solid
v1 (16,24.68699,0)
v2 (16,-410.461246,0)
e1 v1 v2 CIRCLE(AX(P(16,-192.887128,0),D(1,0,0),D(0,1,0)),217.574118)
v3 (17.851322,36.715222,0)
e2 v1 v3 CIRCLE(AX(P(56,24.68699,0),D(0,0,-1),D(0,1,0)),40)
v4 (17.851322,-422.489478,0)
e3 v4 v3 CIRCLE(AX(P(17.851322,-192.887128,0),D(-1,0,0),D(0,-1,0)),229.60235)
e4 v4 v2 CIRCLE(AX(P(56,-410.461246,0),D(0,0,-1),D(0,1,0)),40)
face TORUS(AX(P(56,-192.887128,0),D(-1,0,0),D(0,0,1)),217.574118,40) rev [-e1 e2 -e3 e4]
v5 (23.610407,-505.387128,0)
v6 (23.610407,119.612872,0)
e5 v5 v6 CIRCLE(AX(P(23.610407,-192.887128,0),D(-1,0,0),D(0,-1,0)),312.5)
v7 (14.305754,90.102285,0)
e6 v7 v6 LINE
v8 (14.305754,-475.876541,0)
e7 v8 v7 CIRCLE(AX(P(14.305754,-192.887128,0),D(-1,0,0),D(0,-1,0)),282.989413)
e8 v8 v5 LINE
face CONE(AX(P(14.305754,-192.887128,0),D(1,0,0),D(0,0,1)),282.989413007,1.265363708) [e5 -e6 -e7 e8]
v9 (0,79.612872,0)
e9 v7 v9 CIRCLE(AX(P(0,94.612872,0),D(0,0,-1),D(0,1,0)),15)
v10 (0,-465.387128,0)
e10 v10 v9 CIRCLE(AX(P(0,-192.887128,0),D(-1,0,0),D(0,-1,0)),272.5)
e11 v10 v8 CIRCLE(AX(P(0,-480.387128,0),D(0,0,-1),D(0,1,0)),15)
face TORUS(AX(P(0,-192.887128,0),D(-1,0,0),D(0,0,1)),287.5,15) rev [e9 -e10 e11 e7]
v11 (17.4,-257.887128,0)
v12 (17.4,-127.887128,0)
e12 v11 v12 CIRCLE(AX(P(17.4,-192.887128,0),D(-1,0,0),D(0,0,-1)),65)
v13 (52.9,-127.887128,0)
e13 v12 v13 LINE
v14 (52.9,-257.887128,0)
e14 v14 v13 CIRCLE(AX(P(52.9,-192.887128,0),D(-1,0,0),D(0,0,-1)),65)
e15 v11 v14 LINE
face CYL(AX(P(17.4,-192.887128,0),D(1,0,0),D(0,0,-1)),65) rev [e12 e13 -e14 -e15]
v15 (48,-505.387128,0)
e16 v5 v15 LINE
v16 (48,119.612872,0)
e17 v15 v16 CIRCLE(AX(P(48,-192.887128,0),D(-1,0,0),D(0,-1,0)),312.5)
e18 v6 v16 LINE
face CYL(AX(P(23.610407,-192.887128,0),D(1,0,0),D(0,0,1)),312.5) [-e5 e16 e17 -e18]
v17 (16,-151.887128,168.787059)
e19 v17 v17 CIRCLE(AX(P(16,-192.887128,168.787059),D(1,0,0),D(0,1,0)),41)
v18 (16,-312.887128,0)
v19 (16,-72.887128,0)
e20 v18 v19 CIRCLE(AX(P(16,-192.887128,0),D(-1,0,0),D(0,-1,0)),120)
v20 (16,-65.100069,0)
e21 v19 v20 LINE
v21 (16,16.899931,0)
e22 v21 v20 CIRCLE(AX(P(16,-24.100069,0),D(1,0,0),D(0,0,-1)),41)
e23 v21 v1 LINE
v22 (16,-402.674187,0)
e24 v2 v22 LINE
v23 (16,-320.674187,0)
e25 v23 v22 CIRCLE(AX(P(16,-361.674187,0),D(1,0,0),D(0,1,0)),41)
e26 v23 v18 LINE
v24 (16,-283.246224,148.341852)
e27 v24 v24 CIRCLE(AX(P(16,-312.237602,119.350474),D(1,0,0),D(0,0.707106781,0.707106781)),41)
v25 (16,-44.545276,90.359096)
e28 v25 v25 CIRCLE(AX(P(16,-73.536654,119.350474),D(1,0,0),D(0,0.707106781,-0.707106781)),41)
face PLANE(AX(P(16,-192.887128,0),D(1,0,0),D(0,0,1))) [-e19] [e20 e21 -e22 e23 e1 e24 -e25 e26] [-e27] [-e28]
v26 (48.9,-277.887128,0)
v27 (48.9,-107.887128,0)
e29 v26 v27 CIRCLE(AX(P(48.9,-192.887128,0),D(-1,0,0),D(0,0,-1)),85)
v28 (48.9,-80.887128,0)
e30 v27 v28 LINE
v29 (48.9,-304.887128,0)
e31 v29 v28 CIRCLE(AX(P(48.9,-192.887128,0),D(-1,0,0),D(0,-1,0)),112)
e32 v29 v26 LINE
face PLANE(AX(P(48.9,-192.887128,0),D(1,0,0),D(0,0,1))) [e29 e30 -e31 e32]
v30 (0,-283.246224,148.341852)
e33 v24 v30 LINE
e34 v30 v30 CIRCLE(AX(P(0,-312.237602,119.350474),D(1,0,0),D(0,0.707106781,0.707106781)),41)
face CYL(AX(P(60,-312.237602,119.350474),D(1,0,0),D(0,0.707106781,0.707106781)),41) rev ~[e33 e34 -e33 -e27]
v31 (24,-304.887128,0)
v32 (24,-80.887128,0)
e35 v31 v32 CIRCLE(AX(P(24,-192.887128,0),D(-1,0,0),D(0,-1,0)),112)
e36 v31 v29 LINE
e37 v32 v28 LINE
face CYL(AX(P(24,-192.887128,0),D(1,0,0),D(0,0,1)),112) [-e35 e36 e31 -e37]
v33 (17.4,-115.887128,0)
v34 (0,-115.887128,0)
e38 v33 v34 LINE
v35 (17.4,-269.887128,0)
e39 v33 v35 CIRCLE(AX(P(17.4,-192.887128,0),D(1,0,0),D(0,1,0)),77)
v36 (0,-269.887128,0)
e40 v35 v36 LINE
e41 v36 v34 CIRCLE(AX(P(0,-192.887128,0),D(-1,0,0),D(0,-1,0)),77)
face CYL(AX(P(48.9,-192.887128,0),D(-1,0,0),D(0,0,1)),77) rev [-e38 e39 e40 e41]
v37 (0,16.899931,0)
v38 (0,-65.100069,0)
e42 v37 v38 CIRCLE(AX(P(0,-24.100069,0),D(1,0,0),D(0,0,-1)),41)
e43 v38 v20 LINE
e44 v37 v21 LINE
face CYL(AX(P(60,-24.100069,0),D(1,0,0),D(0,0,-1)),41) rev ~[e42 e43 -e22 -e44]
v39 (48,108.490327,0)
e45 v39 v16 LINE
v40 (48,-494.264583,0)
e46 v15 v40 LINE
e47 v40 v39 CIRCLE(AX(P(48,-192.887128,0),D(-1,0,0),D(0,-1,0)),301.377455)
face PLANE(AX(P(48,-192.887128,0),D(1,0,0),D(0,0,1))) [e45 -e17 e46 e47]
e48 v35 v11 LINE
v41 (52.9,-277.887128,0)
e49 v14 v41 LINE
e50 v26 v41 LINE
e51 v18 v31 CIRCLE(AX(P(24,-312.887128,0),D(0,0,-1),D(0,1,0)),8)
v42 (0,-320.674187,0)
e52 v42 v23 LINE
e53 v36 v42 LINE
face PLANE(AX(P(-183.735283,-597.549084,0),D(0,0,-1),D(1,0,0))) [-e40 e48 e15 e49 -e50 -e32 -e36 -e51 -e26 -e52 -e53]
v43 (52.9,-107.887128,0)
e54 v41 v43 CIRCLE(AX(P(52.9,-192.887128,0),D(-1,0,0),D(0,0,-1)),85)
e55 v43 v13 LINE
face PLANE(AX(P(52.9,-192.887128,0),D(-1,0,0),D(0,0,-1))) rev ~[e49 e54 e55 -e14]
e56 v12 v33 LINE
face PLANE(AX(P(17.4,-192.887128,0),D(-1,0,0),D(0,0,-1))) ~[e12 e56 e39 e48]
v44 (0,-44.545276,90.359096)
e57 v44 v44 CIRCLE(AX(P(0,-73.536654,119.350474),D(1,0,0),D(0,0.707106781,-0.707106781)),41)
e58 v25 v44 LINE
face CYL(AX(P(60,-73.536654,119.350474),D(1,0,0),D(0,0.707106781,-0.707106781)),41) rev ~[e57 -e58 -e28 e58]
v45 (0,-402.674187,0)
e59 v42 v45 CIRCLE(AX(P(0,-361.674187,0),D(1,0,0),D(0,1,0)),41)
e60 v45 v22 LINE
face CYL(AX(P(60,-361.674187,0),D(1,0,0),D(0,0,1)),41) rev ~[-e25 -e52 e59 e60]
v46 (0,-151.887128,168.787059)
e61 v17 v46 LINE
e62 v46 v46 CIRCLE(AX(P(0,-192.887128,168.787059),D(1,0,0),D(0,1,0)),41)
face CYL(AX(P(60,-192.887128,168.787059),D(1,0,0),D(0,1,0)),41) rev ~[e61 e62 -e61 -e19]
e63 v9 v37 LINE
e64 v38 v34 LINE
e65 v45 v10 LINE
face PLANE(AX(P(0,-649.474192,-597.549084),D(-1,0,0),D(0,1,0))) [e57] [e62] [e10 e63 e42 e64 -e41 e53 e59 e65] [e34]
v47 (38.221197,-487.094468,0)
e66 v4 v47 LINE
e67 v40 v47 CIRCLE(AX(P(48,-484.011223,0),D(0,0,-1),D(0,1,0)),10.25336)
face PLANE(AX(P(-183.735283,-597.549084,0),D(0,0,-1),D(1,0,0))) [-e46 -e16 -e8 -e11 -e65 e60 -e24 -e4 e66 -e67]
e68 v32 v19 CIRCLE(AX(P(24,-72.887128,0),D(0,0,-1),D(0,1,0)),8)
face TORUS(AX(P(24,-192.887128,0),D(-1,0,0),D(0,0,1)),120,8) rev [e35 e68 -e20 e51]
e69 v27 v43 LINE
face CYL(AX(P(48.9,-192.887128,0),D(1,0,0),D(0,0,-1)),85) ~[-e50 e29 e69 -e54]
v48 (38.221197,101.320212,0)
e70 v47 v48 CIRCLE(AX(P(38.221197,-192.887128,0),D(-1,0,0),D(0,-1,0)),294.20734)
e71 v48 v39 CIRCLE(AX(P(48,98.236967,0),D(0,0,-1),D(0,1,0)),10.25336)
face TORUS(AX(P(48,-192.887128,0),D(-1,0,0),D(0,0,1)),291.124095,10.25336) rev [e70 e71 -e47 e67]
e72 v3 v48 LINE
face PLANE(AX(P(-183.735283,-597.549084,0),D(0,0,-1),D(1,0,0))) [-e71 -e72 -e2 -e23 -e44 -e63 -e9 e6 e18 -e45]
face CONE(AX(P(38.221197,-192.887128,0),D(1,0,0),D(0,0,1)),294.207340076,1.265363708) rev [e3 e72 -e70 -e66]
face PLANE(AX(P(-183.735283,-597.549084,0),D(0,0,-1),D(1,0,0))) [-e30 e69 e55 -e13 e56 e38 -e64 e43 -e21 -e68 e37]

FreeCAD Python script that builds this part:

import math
import FreeCAD as App
import Part
import Sketcher
from FreeCAD import Vector
Q = App.Units.Quantity


def add_polygon(sketch, points):
    """Adds a closed chain of lines whose ends are joined by coincident constraints."""
    first, n = sketch.GeometryCount, len(points)
    for a, b in zip(points, points[1:] + points[:1]):
        sketch.addGeometry(Part.LineSegment(App.Vector(*a, 0), App.Vector(*b, 0)), False)
    for i in range(n):
        sketch.addConstraint(Sketcher.Constraint("Coincident", first + i, 2, first + (i + 1) % n, 1))

doc = App.newDocument("Part")
params = doc.addObject("Spreadsheet::Sheet", "Params")
for row, (alias, value) in enumerate([
    ("sketch1_radius", "15 mm"),
    ("sketch1_radius2", "8 mm"),
    ("sketch1_radius3", "40 mm"),
    ("sketch1_width", "56 mm"),
    ("sketch1_height", "35 mm"),
    ("revolution_angle", "360 deg"),
    ("sketch2_diameter", "82 mm"),
    ("pocket1_length", "120 mm"),
    ("sketch3_width", "4 mm"),
    ("sketch3_height", "8 mm"),
    ("sketch3_height2", "12 mm"),
    ("sketch3_width2", "31.5 mm"),
    ("revolution2_angle", "360 deg"),
], start=1):
    params.set(f"A{row}", alias)
    params.set(f"B{row}", "=" + value)
    params.setAlias(f"B{row}", alias)

body = doc.addObject("PartDesign::Body", "Body")

sketch1 = body.newObject("Sketcher::SketchObject", "Sketch")
sketch1.AttachmentSupport = (doc.getObject("XY_Plane"), [""])
sketch1.MapMode = "FlatFace"
sketch1.addGeometry([
    Part.LineSegment(Vector(23.610407, 119.612872, 0), Vector(14.305754, 90.102285, 0)),
    Part.ArcOfCircle(Part.Circle(Vector(0, 94.612872, 0), Vector(0, 0, 1), 15), math.radians(-90), math.radians(-17.5)),
    Part.LineSegment(Vector(0, 79.612872, 0), Vector(0, -115.887128, 0)),
    Part.LineSegment(Vector(0, -115.887128, 0), Vector(48.9, -115.887128, 0)),
    Part.LineSegment(Vector(48.9, -115.887128, 0), Vector(48.9, -80.887128, 0)),
    Part.LineSegment(Vector(48.9, -80.887128, 0), Vector(24, -80.887128, 0)),
    Part.ArcOfCircle(Part.Circle(Vector(24, -72.887128, 0), Vector(0, 0, 1), 8), math.radians(180), math.radians(270)),
    Part.LineSegment(Vector(16, -72.887128, 0), Vector(16, 24.68699, 0)),
    Part.ArcOfCircle(Part.Circle(Vector(56, 24.68699, 0), Vector(0, 0, 1), 40), math.radians(162.5), math.radians(180)),
    Part.LineSegment(Vector(17.851322, 36.715222, 0), Vector(38.221197, 101.320212, 0)),
    Part.ArcOfCircle(Part.Circle(Vector(48, 98.236967, 0), Vector(0, 0, 1), 10.25336), math.radians(90), math.radians(162.5)),
    Part.LineSegment(Vector(48, 108.490327, 0), Vector(48, 119.612872, 0)),
    Part.LineSegment(Vector(48, 119.612872, 0), Vector(23.610407, 119.612872, 0)),
], False)
sketch1.addGeometry(Part.LineSegment(Vector(0, -192.887128, 0), Vector(56, -192.887128, 0)), True)
sketch1.addConstraint([
    Sketcher.Constraint("Tangent", 0, 2, 1, 2),
    Sketcher.Constraint("Coincident", 1, 1, 2, 1),
    Sketcher.Constraint("Coincident", 2, 2, 3, 1),
    Sketcher.Constraint("Coincident", 3, 2, 4, 1),
    Sketcher.Constraint("Coincident", 4, 2, 5, 1),
    Sketcher.Constraint("Tangent", 5, 2, 6, 2),
    Sketcher.Constraint("Tangent", 6, 1, 7, 1),
    Sketcher.Constraint("Tangent", 7, 2, 8, 2),
    Sketcher.Constraint("Tangent", 8, 1, 9, 1),
    Sketcher.Constraint("Tangent", 9, 2, 10, 2),
    Sketcher.Constraint("Coincident", 10, 1, 11, 1),
    Sketcher.Constraint("Coincident", 11, 2, 12, 1),
    Sketcher.Constraint("Coincident", 12, 2, 0, 1),
    Sketcher.Constraint("Vertical", 2),
    Sketcher.Constraint("Horizontal", 3),
    Sketcher.Constraint("Vertical", 4),
    Sketcher.Constraint("Horizontal", 5),
    Sketcher.Constraint("Vertical", 7),
    Sketcher.Constraint("Vertical", 11),
    Sketcher.Constraint("Horizontal", 12),
    Sketcher.Constraint("Horizontal", 13),
    Sketcher.Constraint("PointOnObject", 1, 3, -2),
    Sketcher.Constraint("PointOnObject", 1, 1, -2),
    Sketcher.Constraint("PointOnObject", 13, 1, -2),
    Sketcher.Constraint("Parallel", 0, 9),
    Sketcher.Constraint("Vertical", 8, 3, 13, 2),
    Sketcher.Constraint("Radius", 1, 15.0),
    Sketcher.Constraint("Radius", 6, 8.0),
    Sketcher.Constraint("Radius", 8, 40.0),
    Sketcher.Constraint("DistanceX", 13, 1, 13, 2, 56.0),
    Sketcher.Constraint("DistanceY", 4, 1, 4, 2, 35.0),
    Sketcher.Constraint("DistanceX", 3, 1, 3, 2, 48.9),
    Sketcher.Constraint("DistanceY", 2, 2, 2, 1, 195.5),
    Sketcher.Constraint("DistanceX", -1, 1, 10, 3, 48.0),
    Sketcher.Constraint("DistanceX", -1, 1, 10, 1, 48.0),
    Sketcher.Constraint("Angle", 0, Q("-107.5 deg")),
    Sketcher.Constraint("DistanceY", 1, 3, 11, 2, 25.0),
    Sketcher.Constraint("DistanceY", 13, 1, 2, 2, 77.0),
    Sketcher.Constraint("Radius", 10, 10.25336),
    Sketcher.Constraint("DistanceY", 7, 1, 7, 2, 97.574118),
    Sketcher.Constraint("DistanceY", -1, 1, 1, 3, 94.612872),
])
sketch1.setExpression("Constraints[26]", "Params.sketch1_radius")
sketch1.setExpression("Constraints[27]", "Params.sketch1_radius2")
sketch1.setExpression("Constraints[28]", "Params.sketch1_radius3")
sketch1.setExpression("Constraints[29]", "Params.sketch1_width")
sketch1.setExpression("Constraints[30]", "Params.sketch1_height")
revolution = body.newObject("PartDesign::Revolution", "Revolution")
revolution.Profile = sketch1
revolution.ReferenceAxis = (sketch1, ["Axis0"])
revolution.setExpression("Angle", "Params.revolution_angle")
doc.recompute()

mirrored = body.newObject("PartDesign::Mirrored", "Mirrored")
mirrored.Originals = [revolution]
mirrored.MirrorPlane = (doc.getObject("YZ_Plane"), [""])
body.Tip = mirrored

sketch2 = body.newObject("Sketcher::SketchObject", "Sketch001")
sketch2.AttachmentSupport = (doc.getObject("YZ_Plane"), [""])
sketch2.MapMode = "FlatFace"
sketch2.AttachmentOffset = App.Placement(Vector(0, 0, 60), App.Rotation())
sketch2.addGeometry(Part.Circle(Vector(-24.100069, 0, 0), Vector(0, 0, 1), 41), False)
sketch2.addConstraint([
    Sketcher.Constraint("PointOnObject", 0, 3, -1),
    Sketcher.Constraint("Diameter", 0, 82.0),
    Sketcher.Constraint("DistanceX", 0, 3, -1, 1, 24.100069),
])
sketch2.setExpression("Constraints[1]", "Params.sketch2_diameter")
pocket1 = body.newObject("PartDesign::Pocket", "Pocket")
pocket1.Profile = sketch2
pocket1.setExpression("Length", "Params.pocket1_length")
doc.recompute()

datumline = body.newObject("PartDesign::Line", "DatumLine")
datumline.Placement = App.Placement(Vector(0, -192.887128, 0), App.Rotation(Vector(0, 0, 1), Vector(1, 0, 0)))
polarpattern = body.newObject("PartDesign::PolarPattern", "PolarPattern")
polarpattern.Originals = [pocket1]
polarpattern.Axis = (datumline, [""])
polarpattern.Angle = 360
polarpattern.Occurrences = 8
body.Tip = polarpattern

sketch3 = body.newObject("Sketcher::SketchObject", "Sketch002")
sketch3.AttachmentSupport = (doc.getObject("XY_Plane"), [""])
sketch3.MapMode = "FlatFace"
add_polygon(sketch3, [(48.9, -107.887128), (48.9, -115.887128), (17.4, -115.887128), (17.4, -127.887128), (52.9, -127.887128), (52.9, -107.887128)])
sketch3.addGeometry(Part.LineSegment(Vector(52.9, -192.887128, 0), Vector(17.4, -192.887128, 0)), True)
sketch3.addConstraint([
    Sketcher.Constraint("Vertical", 0),
    Sketcher.Constraint("Horizontal", 1),
    Sketcher.Constraint("Vertical", 2),
    Sketcher.Constraint("Horizontal", 3),
    Sketcher.Constraint("Vertical", 4),
    Sketcher.Constraint("Horizontal", 5),
    Sketcher.Constraint("Horizontal", 6),
    Sketcher.Constraint("Vertical", 4, 2, 6, 1),
    Sketcher.Constraint("Vertical", 2, 2, 6, 2),
    Sketcher.Constraint("DistanceX", 5, 2, 5, 1, 4.0),
    Sketcher.Constraint("DistanceY", 0, 2, 0, 1, 8.0),
    Sketcher.Constraint("DistanceY", 2, 2, 2, 1, 12.0),
    Sketcher.Constraint("DistanceX", 1, 2, 1, 1, 31.5),
    Sketcher.Constraint("DistanceY", 6, 1, 3, 2, 65.0),
    Sketcher.Constraint("DistanceX", -1, 1, 0, 2, 48.9),
    Sketcher.Constraint("DistanceY", 0, 2, -1, 1, 115.887128),
])
sketch3.setExpression("Constraints[15]", "Params.sketch3_width")
sketch3.setExpression("Constraints[16]", "Params.sketch3_height")
sketch3.setExpression("Constraints[17]", "Params.sketch3_height2")
sketch3.setExpression("Constraints[18]", "Params.sketch3_width2")
revolution2 = body.newObject("PartDesign::Revolution", "Revolution001")
revolution2.Profile = sketch3
revolution2.ReferenceAxis = (sketch3, ["Axis0"])
revolution2.setExpression("Angle", "Params.revolution2_angle")
doc.recompute()

mirrored2 = body.newObject("PartDesign::Mirrored", "Mirrored001")
mirrored2.Originals = [revolution2]
mirrored2.MirrorPlane = (doc.getObject("YZ_Plane"), [""])
body.Tip = mirrored2

sketch4 = body.newObject("Sketcher::SketchObject", "Sketch003")
sketch4.AttachmentSupport = (doc.getObject("XY_Plane"), [""])
sketch4.MapMode = "FlatFace"
add_polygon(sketch4, [(-165.941622, 235.344113), (-165.941622, -649.474192), (0, -649.474192), (0, 235.344113)])
sketch4.addConstraint([
    Sketcher.Constraint("Vertical", 0),
    Sketcher.Constraint("Horizontal", 1),
    Sketcher.Constraint("Vertical", 2),
    Sketcher.Constraint("Horizontal", 3),
    Sketcher.Constraint("PointOnObject", 1, 2, -2),
    Sketcher.Constraint("DistanceX", 1, 1, 1, 2, 165.941622),
    Sketcher.Constraint("DistanceY", 0, 2, 0, 1, 884.818305),
    Sketcher.Constraint("DistanceY", 0, 2, -1, 1, 649.474192),
])
pocket2 = body.newObject("PartDesign::Pocket", "Pocket001")
pocket2.Profile = sketch4
pocket2.Type = "ThroughAll"
pocket2.Midplane = True

sketch5 = body.newObject("Sketcher::SketchObject", "Sketch004")
sketch5.AttachmentSupport = (doc.getObject("XZ_Plane"), [""])
sketch5.MapMode = "FlatFace"
add_polygon(sketch5, [(-183.735283, -571.659635), (-183.735283, 0), (214.910355, 0), (214.910355, -571.659635)])
sketch5.addConstraint([
    Sketcher.Constraint("Vertical", 0),
    Sketcher.Constraint("Horizontal", 1),
    Sketcher.Constraint("Vertical", 2),
    Sketcher.Constraint("Horizontal", 3),
    Sketcher.Constraint("PointOnObject", 0, 2, -1),
    Sketcher.Constraint("DistanceX", 1, 1, 1, 2, 398.645637),
    Sketcher.Constraint("DistanceY", 0, 1, 0, 2, 571.659635),
    Sketcher.Constraint("DistanceX", 0, 2, -1, 1, 183.735283),
])
pocket3 = body.newObject("PartDesign::Pocket", "Pocket002")
pocket3.Profile = sketch5
pocket3.Type = "ThroughAll"
pocket3.Midplane = True

doc.recompute()
